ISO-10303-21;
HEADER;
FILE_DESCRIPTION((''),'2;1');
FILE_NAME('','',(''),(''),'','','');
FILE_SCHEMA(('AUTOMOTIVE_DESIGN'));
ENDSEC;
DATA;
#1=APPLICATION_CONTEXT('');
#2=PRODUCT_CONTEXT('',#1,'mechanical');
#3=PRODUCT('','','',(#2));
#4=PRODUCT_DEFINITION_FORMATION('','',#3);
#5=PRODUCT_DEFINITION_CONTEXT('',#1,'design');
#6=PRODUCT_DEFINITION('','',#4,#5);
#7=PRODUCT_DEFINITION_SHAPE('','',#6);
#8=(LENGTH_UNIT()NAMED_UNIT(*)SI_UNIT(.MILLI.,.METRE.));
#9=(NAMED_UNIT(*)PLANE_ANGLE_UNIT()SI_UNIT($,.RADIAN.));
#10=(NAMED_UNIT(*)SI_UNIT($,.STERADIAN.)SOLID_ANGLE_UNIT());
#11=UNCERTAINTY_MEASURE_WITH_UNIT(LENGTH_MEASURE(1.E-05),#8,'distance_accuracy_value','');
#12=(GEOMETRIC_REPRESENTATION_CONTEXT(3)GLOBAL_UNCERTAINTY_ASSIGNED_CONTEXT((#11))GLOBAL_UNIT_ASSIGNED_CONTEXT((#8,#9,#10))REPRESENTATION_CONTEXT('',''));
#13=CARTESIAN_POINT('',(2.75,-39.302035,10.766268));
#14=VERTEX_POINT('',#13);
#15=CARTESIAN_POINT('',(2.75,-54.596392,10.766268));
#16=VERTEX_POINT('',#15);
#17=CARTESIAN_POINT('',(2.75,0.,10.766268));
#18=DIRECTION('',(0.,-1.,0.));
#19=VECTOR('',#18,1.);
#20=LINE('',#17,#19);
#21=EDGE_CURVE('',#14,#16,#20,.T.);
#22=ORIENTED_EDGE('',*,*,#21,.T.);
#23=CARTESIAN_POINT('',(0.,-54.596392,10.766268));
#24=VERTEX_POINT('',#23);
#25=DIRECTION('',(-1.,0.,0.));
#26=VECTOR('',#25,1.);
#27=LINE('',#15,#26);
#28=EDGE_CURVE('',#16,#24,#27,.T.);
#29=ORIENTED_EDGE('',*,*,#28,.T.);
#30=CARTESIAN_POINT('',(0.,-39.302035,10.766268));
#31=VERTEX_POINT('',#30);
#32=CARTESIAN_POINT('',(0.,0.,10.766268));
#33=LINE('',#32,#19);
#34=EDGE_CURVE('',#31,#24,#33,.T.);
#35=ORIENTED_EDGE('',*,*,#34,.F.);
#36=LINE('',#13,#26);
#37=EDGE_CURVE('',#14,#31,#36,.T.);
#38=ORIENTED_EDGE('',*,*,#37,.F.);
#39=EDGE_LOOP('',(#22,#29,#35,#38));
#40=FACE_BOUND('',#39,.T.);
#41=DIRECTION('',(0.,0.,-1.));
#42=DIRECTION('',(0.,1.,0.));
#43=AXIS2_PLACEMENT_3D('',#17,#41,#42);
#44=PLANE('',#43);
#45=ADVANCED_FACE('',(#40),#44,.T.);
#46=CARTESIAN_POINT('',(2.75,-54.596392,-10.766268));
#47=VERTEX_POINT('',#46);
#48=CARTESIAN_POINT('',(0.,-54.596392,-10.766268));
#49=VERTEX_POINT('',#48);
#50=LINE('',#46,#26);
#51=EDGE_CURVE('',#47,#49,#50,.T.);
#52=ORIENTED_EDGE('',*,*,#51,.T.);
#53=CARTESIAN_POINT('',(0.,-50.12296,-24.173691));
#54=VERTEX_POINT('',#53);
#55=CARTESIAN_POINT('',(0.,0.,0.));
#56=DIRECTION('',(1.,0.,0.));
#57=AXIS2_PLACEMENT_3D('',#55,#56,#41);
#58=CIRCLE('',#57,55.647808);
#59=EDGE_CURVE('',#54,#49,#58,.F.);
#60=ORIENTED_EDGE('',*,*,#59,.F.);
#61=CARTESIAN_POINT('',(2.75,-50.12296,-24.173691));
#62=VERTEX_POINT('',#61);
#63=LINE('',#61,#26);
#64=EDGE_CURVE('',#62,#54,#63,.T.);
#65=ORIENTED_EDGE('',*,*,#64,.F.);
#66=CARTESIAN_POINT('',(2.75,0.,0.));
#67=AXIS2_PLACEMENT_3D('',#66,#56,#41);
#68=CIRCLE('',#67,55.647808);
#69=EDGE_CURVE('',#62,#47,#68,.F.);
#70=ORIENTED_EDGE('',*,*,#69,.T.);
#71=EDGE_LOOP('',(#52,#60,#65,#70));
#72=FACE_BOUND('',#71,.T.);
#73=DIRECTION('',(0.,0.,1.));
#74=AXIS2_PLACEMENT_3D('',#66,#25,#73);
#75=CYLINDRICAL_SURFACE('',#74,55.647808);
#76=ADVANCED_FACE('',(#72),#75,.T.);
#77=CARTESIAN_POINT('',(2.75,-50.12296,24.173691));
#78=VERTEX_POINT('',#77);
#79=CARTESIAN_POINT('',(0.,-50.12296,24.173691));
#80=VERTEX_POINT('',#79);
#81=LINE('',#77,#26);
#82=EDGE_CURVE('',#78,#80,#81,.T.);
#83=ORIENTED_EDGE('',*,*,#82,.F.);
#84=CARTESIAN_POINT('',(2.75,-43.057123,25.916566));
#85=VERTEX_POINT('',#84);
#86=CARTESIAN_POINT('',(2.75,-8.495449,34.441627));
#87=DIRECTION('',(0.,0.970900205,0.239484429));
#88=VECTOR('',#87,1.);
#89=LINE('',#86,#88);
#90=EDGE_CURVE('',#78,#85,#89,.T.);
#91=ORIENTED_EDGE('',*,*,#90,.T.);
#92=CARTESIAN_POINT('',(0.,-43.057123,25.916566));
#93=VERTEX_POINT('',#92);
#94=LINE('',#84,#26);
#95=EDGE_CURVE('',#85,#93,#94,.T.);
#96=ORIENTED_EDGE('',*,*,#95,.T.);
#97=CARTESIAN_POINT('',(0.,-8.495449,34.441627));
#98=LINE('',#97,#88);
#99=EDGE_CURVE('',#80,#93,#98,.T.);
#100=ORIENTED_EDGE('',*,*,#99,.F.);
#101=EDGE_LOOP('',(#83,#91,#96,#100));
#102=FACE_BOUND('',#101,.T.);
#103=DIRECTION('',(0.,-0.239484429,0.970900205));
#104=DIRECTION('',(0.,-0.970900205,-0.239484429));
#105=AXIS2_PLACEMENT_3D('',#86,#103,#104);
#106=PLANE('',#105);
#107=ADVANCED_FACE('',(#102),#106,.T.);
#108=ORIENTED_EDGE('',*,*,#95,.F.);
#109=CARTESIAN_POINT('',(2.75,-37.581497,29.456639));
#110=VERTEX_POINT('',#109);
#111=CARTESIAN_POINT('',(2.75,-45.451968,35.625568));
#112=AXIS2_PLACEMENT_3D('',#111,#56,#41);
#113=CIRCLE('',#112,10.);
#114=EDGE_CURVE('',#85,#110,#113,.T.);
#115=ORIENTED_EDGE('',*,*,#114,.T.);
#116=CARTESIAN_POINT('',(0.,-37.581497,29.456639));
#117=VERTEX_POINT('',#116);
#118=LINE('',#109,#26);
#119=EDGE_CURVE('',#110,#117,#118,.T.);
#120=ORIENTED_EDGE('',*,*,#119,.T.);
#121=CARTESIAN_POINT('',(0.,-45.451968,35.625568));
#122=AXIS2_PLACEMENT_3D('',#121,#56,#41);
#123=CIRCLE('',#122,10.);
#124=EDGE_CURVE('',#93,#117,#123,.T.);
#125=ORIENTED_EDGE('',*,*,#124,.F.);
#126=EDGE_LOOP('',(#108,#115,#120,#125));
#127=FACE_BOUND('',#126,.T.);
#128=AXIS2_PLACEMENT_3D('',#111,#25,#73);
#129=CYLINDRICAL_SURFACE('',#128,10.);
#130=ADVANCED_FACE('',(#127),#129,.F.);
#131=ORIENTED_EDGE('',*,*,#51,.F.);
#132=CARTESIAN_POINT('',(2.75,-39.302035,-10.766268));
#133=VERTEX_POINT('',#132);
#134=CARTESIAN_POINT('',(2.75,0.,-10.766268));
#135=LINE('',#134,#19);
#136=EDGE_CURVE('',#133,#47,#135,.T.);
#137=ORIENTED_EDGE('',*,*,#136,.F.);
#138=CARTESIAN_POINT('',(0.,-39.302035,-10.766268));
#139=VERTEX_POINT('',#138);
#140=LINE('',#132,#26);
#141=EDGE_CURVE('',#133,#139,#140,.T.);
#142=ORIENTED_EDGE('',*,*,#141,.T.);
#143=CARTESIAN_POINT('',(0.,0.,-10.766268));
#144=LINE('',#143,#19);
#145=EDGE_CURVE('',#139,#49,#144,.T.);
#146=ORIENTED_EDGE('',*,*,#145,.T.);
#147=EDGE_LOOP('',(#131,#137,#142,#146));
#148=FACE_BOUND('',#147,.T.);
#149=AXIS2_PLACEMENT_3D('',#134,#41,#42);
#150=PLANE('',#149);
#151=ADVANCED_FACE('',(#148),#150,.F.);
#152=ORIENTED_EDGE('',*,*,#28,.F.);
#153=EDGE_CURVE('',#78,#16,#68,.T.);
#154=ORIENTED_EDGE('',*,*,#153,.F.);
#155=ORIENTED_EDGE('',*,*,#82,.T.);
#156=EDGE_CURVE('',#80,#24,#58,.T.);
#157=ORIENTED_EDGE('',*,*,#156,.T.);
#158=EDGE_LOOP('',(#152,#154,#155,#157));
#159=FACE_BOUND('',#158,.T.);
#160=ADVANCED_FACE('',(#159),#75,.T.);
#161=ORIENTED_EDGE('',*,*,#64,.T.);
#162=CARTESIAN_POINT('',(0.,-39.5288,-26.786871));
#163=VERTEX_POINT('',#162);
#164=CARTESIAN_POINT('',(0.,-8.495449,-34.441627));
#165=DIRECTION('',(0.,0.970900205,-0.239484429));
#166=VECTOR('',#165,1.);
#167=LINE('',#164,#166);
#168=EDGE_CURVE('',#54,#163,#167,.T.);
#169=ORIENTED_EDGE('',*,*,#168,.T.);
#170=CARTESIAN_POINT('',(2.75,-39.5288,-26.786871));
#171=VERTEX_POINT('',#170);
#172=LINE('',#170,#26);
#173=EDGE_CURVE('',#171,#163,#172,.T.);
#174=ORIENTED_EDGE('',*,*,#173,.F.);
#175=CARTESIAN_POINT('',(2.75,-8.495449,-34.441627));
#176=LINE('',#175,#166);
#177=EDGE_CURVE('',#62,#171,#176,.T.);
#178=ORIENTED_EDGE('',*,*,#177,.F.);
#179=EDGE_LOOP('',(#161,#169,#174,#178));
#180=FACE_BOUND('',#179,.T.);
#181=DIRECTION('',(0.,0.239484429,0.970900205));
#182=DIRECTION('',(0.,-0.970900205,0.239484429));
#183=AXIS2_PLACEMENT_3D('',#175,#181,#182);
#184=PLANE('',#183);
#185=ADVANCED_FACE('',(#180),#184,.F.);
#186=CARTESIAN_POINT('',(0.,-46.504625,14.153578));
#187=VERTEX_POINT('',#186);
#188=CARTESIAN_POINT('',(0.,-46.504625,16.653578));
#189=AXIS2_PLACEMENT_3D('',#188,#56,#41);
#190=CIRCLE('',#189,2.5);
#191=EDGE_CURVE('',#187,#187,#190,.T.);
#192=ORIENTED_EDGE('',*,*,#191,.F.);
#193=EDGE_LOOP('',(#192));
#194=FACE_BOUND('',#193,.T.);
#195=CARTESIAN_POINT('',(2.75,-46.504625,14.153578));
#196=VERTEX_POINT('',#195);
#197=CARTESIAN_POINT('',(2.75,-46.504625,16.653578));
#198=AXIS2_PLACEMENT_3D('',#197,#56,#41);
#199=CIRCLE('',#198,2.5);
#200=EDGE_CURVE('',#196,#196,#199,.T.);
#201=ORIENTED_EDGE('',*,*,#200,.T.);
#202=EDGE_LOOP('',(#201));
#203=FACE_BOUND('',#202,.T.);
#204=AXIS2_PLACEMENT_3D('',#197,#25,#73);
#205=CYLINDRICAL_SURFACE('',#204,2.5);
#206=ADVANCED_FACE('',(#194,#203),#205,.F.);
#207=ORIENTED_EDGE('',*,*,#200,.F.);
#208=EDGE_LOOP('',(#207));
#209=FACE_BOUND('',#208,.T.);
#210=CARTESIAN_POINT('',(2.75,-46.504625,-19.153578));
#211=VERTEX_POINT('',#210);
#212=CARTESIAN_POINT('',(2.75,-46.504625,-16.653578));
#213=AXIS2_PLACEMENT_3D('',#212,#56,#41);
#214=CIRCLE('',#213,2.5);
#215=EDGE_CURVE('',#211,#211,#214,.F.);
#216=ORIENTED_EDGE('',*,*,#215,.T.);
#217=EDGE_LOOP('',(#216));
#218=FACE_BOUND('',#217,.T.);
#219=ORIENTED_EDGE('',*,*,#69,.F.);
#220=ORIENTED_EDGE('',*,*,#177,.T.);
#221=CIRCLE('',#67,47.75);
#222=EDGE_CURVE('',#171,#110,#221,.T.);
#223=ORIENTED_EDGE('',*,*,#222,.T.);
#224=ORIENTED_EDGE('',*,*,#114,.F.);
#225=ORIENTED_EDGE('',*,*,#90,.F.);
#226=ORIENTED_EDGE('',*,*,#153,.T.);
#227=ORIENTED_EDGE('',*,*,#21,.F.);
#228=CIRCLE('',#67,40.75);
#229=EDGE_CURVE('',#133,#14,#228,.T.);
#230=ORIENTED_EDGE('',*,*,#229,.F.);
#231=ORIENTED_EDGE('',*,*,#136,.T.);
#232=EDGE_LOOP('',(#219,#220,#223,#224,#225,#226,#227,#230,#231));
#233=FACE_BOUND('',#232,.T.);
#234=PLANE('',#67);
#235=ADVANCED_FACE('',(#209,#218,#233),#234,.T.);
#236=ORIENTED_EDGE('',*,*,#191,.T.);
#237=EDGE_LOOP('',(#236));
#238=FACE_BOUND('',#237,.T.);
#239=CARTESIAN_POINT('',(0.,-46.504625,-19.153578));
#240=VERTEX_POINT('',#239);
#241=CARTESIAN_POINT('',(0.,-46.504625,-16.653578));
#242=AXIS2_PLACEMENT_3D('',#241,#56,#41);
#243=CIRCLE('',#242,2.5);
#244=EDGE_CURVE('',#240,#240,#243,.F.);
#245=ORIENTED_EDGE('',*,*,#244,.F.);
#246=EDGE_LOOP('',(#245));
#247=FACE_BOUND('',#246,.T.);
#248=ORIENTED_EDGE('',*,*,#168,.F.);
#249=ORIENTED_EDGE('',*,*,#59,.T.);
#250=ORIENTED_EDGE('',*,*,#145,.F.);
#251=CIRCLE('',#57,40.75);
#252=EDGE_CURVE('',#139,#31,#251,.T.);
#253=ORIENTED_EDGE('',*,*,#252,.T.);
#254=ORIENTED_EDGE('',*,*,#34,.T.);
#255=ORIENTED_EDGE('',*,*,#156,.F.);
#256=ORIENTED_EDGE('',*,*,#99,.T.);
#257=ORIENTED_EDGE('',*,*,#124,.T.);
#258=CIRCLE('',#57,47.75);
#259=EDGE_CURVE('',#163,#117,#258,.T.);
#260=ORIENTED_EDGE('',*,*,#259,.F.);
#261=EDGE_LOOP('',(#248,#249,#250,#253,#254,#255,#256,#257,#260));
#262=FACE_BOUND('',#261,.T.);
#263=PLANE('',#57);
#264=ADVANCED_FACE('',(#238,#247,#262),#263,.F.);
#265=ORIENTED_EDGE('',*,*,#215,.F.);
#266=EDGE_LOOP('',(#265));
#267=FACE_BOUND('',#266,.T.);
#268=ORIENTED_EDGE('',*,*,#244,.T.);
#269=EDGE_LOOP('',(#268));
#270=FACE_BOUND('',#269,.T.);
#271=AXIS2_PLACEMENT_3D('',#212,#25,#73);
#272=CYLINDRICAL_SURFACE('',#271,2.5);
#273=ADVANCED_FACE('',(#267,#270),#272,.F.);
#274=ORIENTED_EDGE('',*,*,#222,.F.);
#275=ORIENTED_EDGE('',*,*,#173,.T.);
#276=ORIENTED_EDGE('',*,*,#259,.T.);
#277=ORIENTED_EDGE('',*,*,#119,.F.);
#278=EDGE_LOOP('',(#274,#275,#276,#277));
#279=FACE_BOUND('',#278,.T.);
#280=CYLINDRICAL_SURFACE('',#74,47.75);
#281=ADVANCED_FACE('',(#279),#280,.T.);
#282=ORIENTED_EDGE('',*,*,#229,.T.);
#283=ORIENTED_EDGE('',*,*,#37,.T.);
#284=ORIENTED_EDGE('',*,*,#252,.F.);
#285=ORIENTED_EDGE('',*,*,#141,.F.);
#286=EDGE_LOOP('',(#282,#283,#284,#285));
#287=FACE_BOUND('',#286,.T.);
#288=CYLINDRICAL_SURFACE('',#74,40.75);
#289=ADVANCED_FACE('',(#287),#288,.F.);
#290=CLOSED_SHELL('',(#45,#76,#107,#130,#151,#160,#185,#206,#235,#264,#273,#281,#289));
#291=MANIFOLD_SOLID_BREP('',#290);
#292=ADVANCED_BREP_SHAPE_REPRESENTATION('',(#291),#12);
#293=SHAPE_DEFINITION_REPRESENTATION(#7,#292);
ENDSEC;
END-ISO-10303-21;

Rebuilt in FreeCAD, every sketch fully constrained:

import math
import FreeCAD as App
import Part
import Sketcher

V = App.Vector
Q = App.Units.Quantity

doc = App.newDocument("Part")
body = doc.addObject("PartDesign::Body", "Body")

# Sketch on YZ plane
sketch1 = doc.addObject("Sketcher::SketchObject", "Sketch")
body.addObject(sketch1)
sketch1.AttachmentSupport = (doc.YZ_Plane, [""])
sketch1.MapMode = "FlatFace"
sketch1.addGeometry([
    Part.ArcOfCircle(Part.Circle(V(-45.451968, 35.625569, 0), V(0, 0, 1), 10), math.radians(-76.143887), math.radians(-38.089595)),  # 0
    Part.LineSegment(V(-43.057123, 25.916566, 0), V(-50.12296, 24.173691, 0)),  # 1
    Part.ArcOfCircle(Part.Circle(V(0, 0, 0), V(0, 0, 1), 55.647808), math.radians(154.252555), math.radians(168.84455)),  # 2
    Part.LineSegment(V(-54.596392, 10.766268, 0), V(-39.302035, 10.766268, 0)),  # 3
    Part.ArcOfCircle(Part.Circle(V(0, 0, 0), V(0, 0, 1), 40.75), math.radians(-164.680406), math.radians(164.680406)),  # 4
    Part.LineSegment(V(-39.302035, -10.766268, 0), V(-54.596392, -10.766268, 0)),  # 5
    Part.ArcOfCircle(Part.Circle(V(0, 0, 0), V(0, 0, 1), 55.647808), math.radians(-168.84455), math.radians(-154.252555)),  # 6
    Part.LineSegment(V(-50.12296, -24.173691, 0), V(-39.5288, -26.786871, 0)),  # 7
    Part.ArcOfCircle(Part.Circle(V(0, 0, 0), V(0, 0, 1), 47.75), math.radians(-145.876292), math.radians(141.910405)),  # 8
    Part.Circle(V(-46.504625, -16.653578, 0), V(0, 0, 1), 2.5),  # 9
    Part.Circle(V(-46.504625, 16.653578, 0), V(0, 0, 1), 2.5),  # 10
], False)
sketch1.addConstraint([
    Sketcher.Constraint("Tangent", 0, 1, 1, 1),
    Sketcher.Constraint("Coincident", 1, 2, 2, 1),
    Sketcher.Constraint("Coincident", 2, 2, 3, 1),
    Sketcher.Constraint("Coincident", 3, 2, 4, 2),
    Sketcher.Constraint("Coincident", 4, 1, 5, 1),
    Sketcher.Constraint("Coincident", 5, 2, 6, 1),
    Sketcher.Constraint("Coincident", 6, 2, 7, 1),
    Sketcher.Constraint("Coincident", 7, 2, 8, 1),
    Sketcher.Constraint("Tangent", 8, 2, 0, 2),
    Sketcher.Constraint("Horizontal", 3),
    Sketcher.Constraint("Horizontal", 5),
    Sketcher.Constraint("Coincident", 2, 3, -1, 1),
    Sketcher.Constraint("Coincident", 4, 3, -1, 1),
    Sketcher.Constraint("Coincident", 6, 3, -1, 1),
    Sketcher.Constraint("Coincident", 8, 3, -1, 1),
    Sketcher.Constraint("Equal", 2, 6),
    Sketcher.Constraint("Equal", 9, 10),
    Sketcher.Constraint("Symmetric", 9, 3, 10, 3, -1),
    Sketcher.Constraint("Vertical", 3, 2, 4, 1),
    Sketcher.Constraint("Vertical", 1, 2, 6, 2),
    Sketcher.Constraint("Diameter", 9, Q("5 mm")),
    Sketcher.Constraint("Radius", 0, Q("10 mm")),
    Sketcher.Constraint("Radius", 4, Q("40.75 mm")),
    Sketcher.Constraint("Radius", 8, Q("47.75 mm")),
    Sketcher.Constraint("Radius", 2, Q("55.647808 mm")),
    Sketcher.Constraint("DistanceX", 7, 2, -1, 1, Q("39.5288 mm")),
    Sketcher.Constraint("DistanceX", 10, 3, 0, 1, Q("3.447501 mm")),
    Sketcher.Constraint("DistanceY", 2, 2, 0, 1, Q("15.150298 mm")),
    Sketcher.Constraint("DistanceY", 2, 2, 0, 3, Q("24.859301 mm")),
    Sketcher.Constraint("DistanceX", 3, 1, 3, 2, Q("15.294356 mm")),
    Sketcher.Constraint("DistanceY", 10, 3, 0, 3, Q("18.971991 mm")),
])
pad1 = doc.addObject("PartDesign::Pad", "Pad")
body.addObject(pad1)
pad1.Profile = sketch1
pad1.Length = 2.75

doc.recompute()
